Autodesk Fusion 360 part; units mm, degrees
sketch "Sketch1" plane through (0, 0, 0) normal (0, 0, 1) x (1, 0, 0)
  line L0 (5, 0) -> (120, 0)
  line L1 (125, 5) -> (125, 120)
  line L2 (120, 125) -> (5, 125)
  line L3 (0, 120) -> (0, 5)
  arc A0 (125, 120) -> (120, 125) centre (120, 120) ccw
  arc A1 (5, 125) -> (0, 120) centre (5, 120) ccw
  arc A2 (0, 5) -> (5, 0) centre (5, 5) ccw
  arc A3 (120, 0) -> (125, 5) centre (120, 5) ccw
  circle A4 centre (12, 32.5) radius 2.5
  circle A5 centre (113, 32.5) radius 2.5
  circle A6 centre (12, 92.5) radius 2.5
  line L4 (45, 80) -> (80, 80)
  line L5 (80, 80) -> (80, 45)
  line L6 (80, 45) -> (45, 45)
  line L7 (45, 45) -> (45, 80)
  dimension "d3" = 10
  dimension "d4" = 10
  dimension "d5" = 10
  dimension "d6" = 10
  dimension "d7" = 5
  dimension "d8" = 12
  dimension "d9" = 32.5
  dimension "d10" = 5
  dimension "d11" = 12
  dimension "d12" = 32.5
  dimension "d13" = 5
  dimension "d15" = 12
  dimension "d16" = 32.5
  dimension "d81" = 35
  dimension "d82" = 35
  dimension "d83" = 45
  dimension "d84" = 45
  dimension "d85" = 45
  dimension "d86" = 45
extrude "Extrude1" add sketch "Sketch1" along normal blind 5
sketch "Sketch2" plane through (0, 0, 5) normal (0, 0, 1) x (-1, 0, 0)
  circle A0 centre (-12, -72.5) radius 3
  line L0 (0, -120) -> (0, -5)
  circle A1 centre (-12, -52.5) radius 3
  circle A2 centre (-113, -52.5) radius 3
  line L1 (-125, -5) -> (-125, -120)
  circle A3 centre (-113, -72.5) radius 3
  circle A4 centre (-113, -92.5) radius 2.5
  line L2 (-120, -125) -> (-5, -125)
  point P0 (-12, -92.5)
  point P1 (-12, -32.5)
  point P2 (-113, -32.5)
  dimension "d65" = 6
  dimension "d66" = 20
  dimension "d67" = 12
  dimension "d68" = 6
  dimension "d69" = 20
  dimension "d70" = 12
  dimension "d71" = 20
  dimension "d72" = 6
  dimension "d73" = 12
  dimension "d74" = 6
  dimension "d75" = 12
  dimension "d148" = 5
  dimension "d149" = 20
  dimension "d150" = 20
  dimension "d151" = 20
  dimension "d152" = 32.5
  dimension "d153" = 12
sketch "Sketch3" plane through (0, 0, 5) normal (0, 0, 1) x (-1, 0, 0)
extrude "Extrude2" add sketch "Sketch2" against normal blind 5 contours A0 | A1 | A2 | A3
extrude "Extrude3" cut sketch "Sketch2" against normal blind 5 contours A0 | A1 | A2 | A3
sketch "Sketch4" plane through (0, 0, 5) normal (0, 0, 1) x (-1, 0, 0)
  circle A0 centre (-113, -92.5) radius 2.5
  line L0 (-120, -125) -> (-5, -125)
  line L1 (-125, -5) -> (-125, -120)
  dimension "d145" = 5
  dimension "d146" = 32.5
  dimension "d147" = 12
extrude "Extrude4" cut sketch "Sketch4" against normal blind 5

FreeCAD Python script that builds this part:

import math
import FreeCAD as App
import Part
import Sketcher

doc = App.newDocument("Part")
body = doc.addObject("PartDesign::Body", "Body")

# Sketch on XY plane
sketch1 = doc.addObject("Sketcher::SketchObject", "Sketch")
body.addObject(sketch1)
sketch1.AttachmentSupport = (doc.XY_Plane, [""])
sketch1.MapMode = "FlatFace"
sketch1.addGeometry([
    Part.ArcOfCircle(Part.Circle(App.Vector(5, 5, 0), App.Vector(0, 0, 1), 5), math.radians(180), math.radians(270)),  # 0
    Part.LineSegment(App.Vector(5, 0, 0), App.Vector(120, 0, 0)),  # 1
    Part.ArcOfCircle(Part.Circle(App.Vector(120, 5, 0), App.Vector(0, 0, 1), 5), math.radians(-90), math.radians(0)),  # 2
    Part.LineSegment(App.Vector(125, 5, 0), App.Vector(125, 120, 0)),  # 3
    Part.ArcOfCircle(Part.Circle(App.Vector(120, 120, 0), App.Vector(0, 0, 1), 5), math.radians(0), math.radians(90)),  # 4
    Part.LineSegment(App.Vector(120, 125, 0), App.Vector(5, 125, 0)),  # 5
    Part.ArcOfCircle(Part.Circle(App.Vector(5, 120, 0), App.Vector(0, 0, 1), 5), math.radians(90), math.radians(180)),  # 6
    Part.LineSegment(App.Vector(0, 120, 0), App.Vector(0, 5, 0)),  # 7
    Part.Circle(App.Vector(12, 32.5, 0), App.Vector(0, 0, 1), 2.5),  # 8
    Part.Circle(App.Vector(113, 32.5, 0), App.Vector(0, 0, 1), 2.5),  # 9
    Part.Circle(App.Vector(12, 92.5, 0), App.Vector(0, 0, 1), 2.5),  # 10
    Part.LineSegment(App.Vector(45, 45, 0), App.Vector(45, 80, 0)),  # 11
    Part.LineSegment(App.Vector(45, 80, 0), App.Vector(80, 80, 0)),  # 12
    Part.LineSegment(App.Vector(80, 80, 0), App.Vector(80, 45, 0)),  # 13
    Part.LineSegment(App.Vector(80, 45, 0), App.Vector(45, 45, 0)),  # 14
], False)
sketch1.addConstraint([
    Sketcher.Constraint("Tangent", 0, 2, 1, 1),
    Sketcher.Constraint("Tangent", 1, 2, 2, 1),
    Sketcher.Constraint("Tangent", 2, 2, 3, 1),
    Sketcher.Constraint("Tangent", 3, 2, 4, 1),
    Sketcher.Constraint("Tangent", 4, 2, 5, 1),
    Sketcher.Constraint("Tangent", 5, 2, 6, 1),
    Sketcher.Constraint("Tangent", 6, 2, 7, 1),
    Sketcher.Constraint("Tangent", 7, 2, 0, 1),
    Sketcher.Constraint("Coincident", 11, 2, 12, 1),
    Sketcher.Constraint("Coincident", 12, 2, 13, 1),
    Sketcher.Constraint("Coincident", 13, 2, 14, 1),
    Sketcher.Constraint("Coincident", 14, 2, 11, 1),
    Sketcher.Constraint("Horizontal", 1),
    Sketcher.Constraint("Vertical", 3),
    Sketcher.Constraint("Horizontal", 5),
    Sketcher.Constraint("Vertical", 7),
    Sketcher.Constraint("Vertical", 11),
    Sketcher.Constraint("Horizontal", 12),
    Sketcher.Constraint("Vertical", 13),
    Sketcher.Constraint("Horizontal", 14),
    Sketcher.Constraint("Equal", 0, 2),
    Sketcher.Constraint("Equal", 2, 4),
    Sketcher.Constraint("Equal", 4, 6),
    Sketcher.Constraint("Equal", 8, 9),
    Sketcher.Constraint("Equal", 9, 10),
    Sketcher.Constraint("PointOnObject", 0, 2, -1),
    Sketcher.Constraint("PointOnObject", 6, 2, -2),
    Sketcher.Constraint("Horizontal", 8, 3, 9, 3),
    Sketcher.Constraint("Vertical", 8, 3, 10, 3),
    Sketcher.Constraint("Equal", 5, 3),
    Sketcher.Constraint("Equal", 14, 11),
    Sketcher.Constraint("Diameter", 8, 5.0),
    Sketcher.Constraint("Radius", 0, 5.0),
    Sketcher.Constraint("DistanceX", 12, 1, 12, 2, 35.0),
    Sketcher.Constraint("DistanceX", -1, 1, 8, 3, 12.0),
    Sketcher.Constraint("DistanceX", -1, 1, 11, 2, 45.0),
    Sketcher.Constraint("DistanceY", -1, 1, 13, 2, 45.0),
    Sketcher.Constraint("DistanceX", 9, 3, 2, 2, 12.0),
    Sketcher.Constraint("DistanceY", 11, 2, 5, 2, 45.0),
    Sketcher.Constraint("DistanceY", -1, 1, 8, 3, 32.5),
    Sketcher.Constraint("DistanceY", 10, 3, 4, 2, 32.5),
])
pad1 = doc.addObject("PartDesign::Pad", "Pad")
body.addObject(pad1)
pad1.Profile = sketch1
pad1.Length = 5

# Sketch on XY plane
sketch2 = doc.addObject("Sketcher::SketchObject", "Sketch001")
body.addObject(sketch2)
sketch2.AttachmentSupport = (doc.XY_Plane, [""])
sketch2.MapMode = "FlatFace"
sketch2.AttachmentOffset = App.Placement(App.Vector(0, 0, 5), App.Rotation())
sketch2.addGeometry([
    Part.Circle(App.Vector(12, 72.5, 0), App.Vector(0, 0, 1), 3),
    Part.Circle(App.Vector(12, 52.5, 0), App.Vector(0, 0, 1), 3),
    Part.Circle(App.Vector(113, 52.5, 0), App.Vector(0, 0, 1), 3),
    Part.Circle(App.Vector(113, 72.5, 0), App.Vector(0, 0, 1), 3),
], False)
sketch2.addConstraint([
    Sketcher.Constraint("Equal", 0, 1),
    Sketcher.Constraint("Equal", 1, 2),
    Sketcher.Constraint("Equal", 2, 3),
    Sketcher.Constraint("Horizontal", 1, 3, 2, 3),
    Sketcher.Constraint("Horizontal", 0, 3, 3, 3),
    Sketcher.Constraint("Vertical", 0, 3, 1, 3),
    Sketcher.Constraint("Vertical", 2, 3, 3, 3),
    Sketcher.Constraint("Diameter", 0, 6.0),
    Sketcher.Constraint("DistanceX", -1, 1, 0, 3, 12.0),
    Sketcher.Constraint("DistanceY", 1, 3, 0, 3, 20.0),
    Sketcher.Constraint("DistanceX", -1, 1, 2, 3, 113.0),
    Sketcher.Constraint("DistanceY", -1, 1, 0, 3, 72.5),
])
pad2 = doc.addObject("PartDesign::Pad", "Pad001")
body.addObject(pad2)
pad2.Profile = sketch2
pad2.Length = 5
pad2.Reversed = True

# Sketch on XY plane
sketch3 = doc.addObject("Sketcher::SketchObject", "Sketch002")
body.addObject(sketch3)
sketch3.AttachmentSupport = (doc.XY_Plane, [""])
sketch3.MapMode = "FlatFace"
sketch3.AttachmentOffset = App.Placement(App.Vector(0, 0, 5), App.Rotation())
sketch3.addGeometry([
    Part.Circle(App.Vector(12, 72.5, 0), App.Vector(0, 0, 1), 3),
    Part.Circle(App.Vector(12, 52.5, 0), App.Vector(0, 0, 1), 3),
    Part.Circle(App.Vector(113, 52.5, 0), App.Vector(0, 0, 1), 3),
    Part.Circle(App.Vector(113, 72.5, 0), App.Vector(0, 0, 1), 3),
], False)
sketch3.addConstraint([
    Sketcher.Constraint("Equal", 0, 1),
    Sketcher.Constraint("Equal", 1, 2),
    Sketcher.Constraint("Equal", 2, 3),
    Sketcher.Constraint("Horizontal", 1, 3, 2, 3),
    Sketcher.Constraint("Horizontal", 0, 3, 3, 3),
    Sketcher.Constraint("Vertical", 0, 3, 1, 3),
    Sketcher.Constraint("Vertical", 2, 3, 3, 3),
    Sketcher.Constraint("Diameter", 0, 6.0),
    Sketcher.Constraint("DistanceX", -1, 1, 0, 3, 12.0),
    Sketcher.Constraint("DistanceY", 1, 3, 0, 3, 20.0),
    Sketcher.Constraint("DistanceX", -1, 1, 2, 3, 113.0),
    Sketcher.Constraint("DistanceY", -1, 1, 0, 3, 72.5),
])
pocket1 = doc.addObject("PartDesign::Pocket", "Pocket")
body.addObject(pocket1)
pocket1.Profile = sketch3
pocket1.Length = 5

# Sketch on XY plane
sketch4 = doc.addObject("Sketcher::SketchObject", "Sketch003")
body.addObject(sketch4)
sketch4.AttachmentSupport = (doc.XY_Plane, [""])
sketch4.MapMode = "FlatFace"
sketch4.AttachmentOffset = App.Placement(App.Vector(0, 0, 5), App.Rotation())
sketch4.addGeometry(Part.Circle(App.Vector(113, 92.5, 0), App.Vector(0, 0, 1), 2.5), False)
sketch4.addConstraint([
    Sketcher.Constraint("Diameter", 0, 5.0),
    Sketcher.Constraint("DistanceX", -1, 1, 0, 3, 113.0),
    Sketcher.Constraint("DistanceY", -1, 1, 0, 3, 92.5),
])
pocket2 = doc.addObject("PartDesign::Pocket", "Pocket001")
body.addObject(pocket2)
pocket2.Profile = sketch4
pocket2.Length = 5

doc.recompute()
